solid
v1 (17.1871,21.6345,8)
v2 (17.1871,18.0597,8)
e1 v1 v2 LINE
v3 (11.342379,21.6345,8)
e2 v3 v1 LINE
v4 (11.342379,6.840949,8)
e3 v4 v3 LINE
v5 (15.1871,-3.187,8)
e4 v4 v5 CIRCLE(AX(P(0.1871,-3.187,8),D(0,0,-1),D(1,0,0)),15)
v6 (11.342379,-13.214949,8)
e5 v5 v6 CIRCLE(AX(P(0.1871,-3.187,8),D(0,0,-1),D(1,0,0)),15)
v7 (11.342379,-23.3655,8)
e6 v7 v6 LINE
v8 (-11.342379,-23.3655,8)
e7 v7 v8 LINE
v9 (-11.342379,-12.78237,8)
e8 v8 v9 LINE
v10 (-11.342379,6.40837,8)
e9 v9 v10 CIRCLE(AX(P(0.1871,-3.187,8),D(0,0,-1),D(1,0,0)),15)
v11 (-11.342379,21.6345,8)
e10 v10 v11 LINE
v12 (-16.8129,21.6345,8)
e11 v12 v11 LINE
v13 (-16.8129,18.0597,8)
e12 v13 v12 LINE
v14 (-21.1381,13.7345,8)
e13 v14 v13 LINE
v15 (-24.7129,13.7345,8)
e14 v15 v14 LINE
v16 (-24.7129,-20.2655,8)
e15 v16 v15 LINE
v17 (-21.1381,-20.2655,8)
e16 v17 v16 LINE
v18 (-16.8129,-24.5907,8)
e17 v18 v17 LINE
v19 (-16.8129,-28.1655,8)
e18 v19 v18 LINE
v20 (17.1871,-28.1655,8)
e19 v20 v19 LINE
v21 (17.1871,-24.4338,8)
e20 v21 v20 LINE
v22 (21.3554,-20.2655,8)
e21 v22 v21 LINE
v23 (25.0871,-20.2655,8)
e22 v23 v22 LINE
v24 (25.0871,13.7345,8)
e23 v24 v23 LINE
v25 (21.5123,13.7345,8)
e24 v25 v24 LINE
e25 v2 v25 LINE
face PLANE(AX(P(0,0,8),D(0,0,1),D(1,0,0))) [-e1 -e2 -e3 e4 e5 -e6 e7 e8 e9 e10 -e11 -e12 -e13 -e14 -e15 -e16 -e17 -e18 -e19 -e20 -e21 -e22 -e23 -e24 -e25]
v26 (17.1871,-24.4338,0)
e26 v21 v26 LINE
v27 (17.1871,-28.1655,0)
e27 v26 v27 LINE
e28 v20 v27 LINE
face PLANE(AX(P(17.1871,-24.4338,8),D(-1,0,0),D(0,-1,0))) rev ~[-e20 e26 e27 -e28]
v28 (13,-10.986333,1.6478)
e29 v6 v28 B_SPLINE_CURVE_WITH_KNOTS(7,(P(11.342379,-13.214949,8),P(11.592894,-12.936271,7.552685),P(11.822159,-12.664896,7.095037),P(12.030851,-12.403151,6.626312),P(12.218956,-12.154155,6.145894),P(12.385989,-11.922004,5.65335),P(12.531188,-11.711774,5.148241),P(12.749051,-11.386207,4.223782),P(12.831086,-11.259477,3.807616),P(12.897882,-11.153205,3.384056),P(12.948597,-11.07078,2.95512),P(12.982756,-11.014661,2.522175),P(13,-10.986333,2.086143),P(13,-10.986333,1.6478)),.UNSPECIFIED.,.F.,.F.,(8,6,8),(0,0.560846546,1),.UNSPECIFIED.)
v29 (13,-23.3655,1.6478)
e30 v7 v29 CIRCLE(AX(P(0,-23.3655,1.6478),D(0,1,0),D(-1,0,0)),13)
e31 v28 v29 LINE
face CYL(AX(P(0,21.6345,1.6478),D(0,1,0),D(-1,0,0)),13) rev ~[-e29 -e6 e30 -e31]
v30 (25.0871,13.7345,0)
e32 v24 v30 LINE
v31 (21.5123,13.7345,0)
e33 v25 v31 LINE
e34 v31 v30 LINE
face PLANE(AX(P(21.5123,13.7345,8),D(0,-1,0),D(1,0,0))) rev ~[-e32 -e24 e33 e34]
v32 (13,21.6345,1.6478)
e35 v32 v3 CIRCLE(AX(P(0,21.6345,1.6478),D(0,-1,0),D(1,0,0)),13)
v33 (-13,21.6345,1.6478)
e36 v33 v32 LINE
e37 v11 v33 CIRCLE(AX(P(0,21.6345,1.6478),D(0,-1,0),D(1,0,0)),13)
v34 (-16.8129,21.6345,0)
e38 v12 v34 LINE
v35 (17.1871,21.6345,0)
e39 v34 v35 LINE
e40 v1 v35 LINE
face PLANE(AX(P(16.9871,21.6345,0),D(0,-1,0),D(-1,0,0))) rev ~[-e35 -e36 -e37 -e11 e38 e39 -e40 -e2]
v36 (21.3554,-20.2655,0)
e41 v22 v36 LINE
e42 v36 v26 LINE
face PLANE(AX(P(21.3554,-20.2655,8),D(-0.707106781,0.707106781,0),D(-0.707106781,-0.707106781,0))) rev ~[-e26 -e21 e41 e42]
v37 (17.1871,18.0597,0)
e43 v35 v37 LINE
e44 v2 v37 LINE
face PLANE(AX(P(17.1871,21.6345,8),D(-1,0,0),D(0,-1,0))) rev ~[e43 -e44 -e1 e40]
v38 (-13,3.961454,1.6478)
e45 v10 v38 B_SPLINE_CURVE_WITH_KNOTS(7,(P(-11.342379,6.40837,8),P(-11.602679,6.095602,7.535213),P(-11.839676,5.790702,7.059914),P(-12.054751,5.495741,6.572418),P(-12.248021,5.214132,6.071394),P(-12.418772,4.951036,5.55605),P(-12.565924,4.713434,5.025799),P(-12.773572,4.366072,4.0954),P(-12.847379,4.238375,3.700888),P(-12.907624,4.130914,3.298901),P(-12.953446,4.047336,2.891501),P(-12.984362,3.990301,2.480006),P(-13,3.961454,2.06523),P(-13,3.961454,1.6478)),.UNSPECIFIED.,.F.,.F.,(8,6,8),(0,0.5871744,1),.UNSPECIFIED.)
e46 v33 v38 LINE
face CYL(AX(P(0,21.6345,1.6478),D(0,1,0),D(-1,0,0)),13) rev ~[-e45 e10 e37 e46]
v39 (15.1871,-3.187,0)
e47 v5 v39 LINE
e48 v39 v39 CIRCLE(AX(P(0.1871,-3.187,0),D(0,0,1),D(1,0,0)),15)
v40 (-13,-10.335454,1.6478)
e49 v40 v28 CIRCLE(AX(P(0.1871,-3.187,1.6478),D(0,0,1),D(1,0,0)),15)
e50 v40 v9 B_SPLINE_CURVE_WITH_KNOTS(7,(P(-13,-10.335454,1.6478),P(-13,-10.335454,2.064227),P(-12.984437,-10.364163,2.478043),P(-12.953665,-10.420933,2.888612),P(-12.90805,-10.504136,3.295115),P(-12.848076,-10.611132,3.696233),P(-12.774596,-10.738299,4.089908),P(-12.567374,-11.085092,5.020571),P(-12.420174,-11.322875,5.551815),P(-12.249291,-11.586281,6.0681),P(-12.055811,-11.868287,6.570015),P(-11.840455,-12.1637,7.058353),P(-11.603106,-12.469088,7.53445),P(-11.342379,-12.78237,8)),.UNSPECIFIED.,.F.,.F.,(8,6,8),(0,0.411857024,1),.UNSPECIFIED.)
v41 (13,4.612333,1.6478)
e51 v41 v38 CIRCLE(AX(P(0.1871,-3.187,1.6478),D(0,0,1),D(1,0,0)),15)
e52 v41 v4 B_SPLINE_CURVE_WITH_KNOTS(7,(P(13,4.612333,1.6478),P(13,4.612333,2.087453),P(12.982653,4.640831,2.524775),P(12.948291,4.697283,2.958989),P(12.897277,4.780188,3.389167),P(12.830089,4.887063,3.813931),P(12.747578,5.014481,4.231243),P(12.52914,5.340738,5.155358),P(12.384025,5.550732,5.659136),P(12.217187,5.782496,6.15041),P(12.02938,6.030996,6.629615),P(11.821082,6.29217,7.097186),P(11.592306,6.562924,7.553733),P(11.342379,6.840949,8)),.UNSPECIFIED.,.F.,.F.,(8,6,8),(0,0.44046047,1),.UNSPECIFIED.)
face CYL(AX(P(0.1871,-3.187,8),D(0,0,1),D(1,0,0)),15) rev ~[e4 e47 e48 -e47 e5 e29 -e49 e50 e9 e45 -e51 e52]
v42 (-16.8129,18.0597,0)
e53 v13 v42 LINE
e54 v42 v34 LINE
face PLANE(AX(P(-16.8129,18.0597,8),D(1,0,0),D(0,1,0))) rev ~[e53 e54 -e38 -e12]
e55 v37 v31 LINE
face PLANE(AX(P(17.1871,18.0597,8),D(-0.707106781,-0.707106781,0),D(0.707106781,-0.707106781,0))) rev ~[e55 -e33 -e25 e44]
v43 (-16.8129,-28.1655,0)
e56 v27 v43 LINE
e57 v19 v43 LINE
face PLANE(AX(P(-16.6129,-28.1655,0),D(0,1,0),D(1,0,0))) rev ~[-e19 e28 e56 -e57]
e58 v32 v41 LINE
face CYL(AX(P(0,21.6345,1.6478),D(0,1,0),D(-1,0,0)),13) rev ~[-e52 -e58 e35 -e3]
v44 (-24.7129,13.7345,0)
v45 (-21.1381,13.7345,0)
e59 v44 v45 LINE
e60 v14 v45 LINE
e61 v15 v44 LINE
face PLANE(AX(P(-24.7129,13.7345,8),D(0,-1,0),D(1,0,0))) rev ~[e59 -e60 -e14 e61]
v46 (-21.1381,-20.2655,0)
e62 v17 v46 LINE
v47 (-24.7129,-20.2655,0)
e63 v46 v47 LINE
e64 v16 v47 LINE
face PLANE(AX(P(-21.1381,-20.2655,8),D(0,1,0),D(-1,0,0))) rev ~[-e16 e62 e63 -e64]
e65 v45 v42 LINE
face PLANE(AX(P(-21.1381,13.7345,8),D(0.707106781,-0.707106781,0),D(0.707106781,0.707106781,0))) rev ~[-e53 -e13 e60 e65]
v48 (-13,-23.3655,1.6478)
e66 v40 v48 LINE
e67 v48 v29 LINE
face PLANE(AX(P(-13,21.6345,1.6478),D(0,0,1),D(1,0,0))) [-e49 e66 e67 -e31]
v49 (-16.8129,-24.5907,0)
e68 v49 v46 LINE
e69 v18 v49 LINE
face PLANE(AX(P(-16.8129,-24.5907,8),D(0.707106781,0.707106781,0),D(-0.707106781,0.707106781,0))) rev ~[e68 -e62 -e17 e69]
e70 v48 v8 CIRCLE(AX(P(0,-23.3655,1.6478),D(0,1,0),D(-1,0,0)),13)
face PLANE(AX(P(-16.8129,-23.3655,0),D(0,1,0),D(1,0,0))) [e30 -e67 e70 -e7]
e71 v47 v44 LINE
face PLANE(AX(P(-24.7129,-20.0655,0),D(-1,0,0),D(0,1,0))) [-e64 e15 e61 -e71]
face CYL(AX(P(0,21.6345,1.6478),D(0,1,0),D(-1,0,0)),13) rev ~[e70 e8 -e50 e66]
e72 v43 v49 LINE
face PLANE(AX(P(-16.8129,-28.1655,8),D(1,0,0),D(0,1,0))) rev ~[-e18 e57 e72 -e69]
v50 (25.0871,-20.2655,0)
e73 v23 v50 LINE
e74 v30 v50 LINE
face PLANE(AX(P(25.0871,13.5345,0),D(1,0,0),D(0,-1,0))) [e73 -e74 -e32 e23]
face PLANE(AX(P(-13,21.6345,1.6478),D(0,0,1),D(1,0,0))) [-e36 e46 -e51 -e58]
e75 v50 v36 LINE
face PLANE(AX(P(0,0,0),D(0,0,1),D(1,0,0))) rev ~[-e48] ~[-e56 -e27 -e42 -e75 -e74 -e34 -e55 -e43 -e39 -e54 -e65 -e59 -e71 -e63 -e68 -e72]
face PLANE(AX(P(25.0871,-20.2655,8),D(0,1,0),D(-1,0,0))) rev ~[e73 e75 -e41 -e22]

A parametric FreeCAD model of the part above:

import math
import FreeCAD as App
import Part
import Sketcher

V = App.Vector

doc = App.newDocument("Part")
body = doc.addObject("PartDesign::Body", "Body")

# Sketch on XY plane
sketch1 = body.newObject("Sketcher::SketchObject", "Sketch")
sketch1.AttachmentSupport = (doc.getObject("XY_Plane"), [""])
sketch1.MapMode = "FlatFace"
sketch1.addGeometry([
    Part.LineSegment(V(17, 18, 0), V(17, 21.6, 0)),  # 0
    Part.LineSegment(V(17, 21.6, 0), V(-16.6, 21.6, 0)),  # 1
    Part.LineSegment(V(-16.6, 21.6, 0), V(-16.6, 18, 0)),  # 2
    Part.LineSegment(V(-16.6, 18, 0), V(-21.1, 13.5, 0)),  # 3
    Part.LineSegment(V(-21.1, 13.5, 0), V(-24.7, 13.5, 0)),  # 4
    Part.LineSegment(V(-24.7, 13.5, 0), V(-24.7, -20.1, 0)),  # 5
    Part.LineSegment(V(-24.7, -20.1, 0), V(-21.1, -20.1, 0)),  # 6
    Part.LineSegment(V(-21.1, -20.1, 0), V(-16.6, -24.5, 0)),  # 7
    Part.LineSegment(V(-16.6, -24.5, 0), V(-16.6, -28.2, 0)),  # 8
    Part.LineSegment(V(-16.6, -28.2, 0), V(17, -28.2, 0)),  # 9
    Part.LineSegment(V(17, -28.2, 0), V(17, -24.4, 0)),  # 10
    Part.LineSegment(V(17, -24.4, 0), V(21.3, -20.1, 0)),  # 11
    Part.LineSegment(V(21.3, -20.1, 0), V(25.1, -20.1, 0)),  # 12
    Part.LineSegment(V(25.1, -20.1, 0), V(25.1, 13.5, 0)),  # 13
    Part.LineSegment(V(25.1, 13.5, 0), V(21.4, 13.5, 0)),  # 14
    Part.LineSegment(V(21.4, 13.5, 0), V(17, 18, 0)),  # 15
], False)
sketch1.addConstraint([
    Sketcher.Constraint("Coincident", 0, 2, 1, 1),
    Sketcher.Constraint("Coincident", 1, 2, 2, 1),
    Sketcher.Constraint("Coincident", 2, 2, 3, 1),
    Sketcher.Constraint("Coincident", 3, 2, 4, 1),
    Sketcher.Constraint("Coincident", 4, 2, 5, 1),
    Sketcher.Constraint("Coincident", 5, 2, 6, 1),
    Sketcher.Constraint("Coincident", 6, 2, 7, 1),
    Sketcher.Constraint("Coincident", 7, 2, 8, 1),
    Sketcher.Constraint("Coincident", 8, 2, 9, 1),
    Sketcher.Constraint("Coincident", 9, 2, 10, 1),
    Sketcher.Constraint("Coincident", 10, 2, 11, 1),
    Sketcher.Constraint("Coincident", 11, 2, 12, 1),
    Sketcher.Constraint("Coincident", 12, 2, 13, 1),
    Sketcher.Constraint("Coincident", 13, 2, 14, 1),
    Sketcher.Constraint("Coincident", 14, 2, 15, 1),
    Sketcher.Constraint("Coincident", 15, 2, 0, 1),
    Sketcher.Constraint("Vertical", 0),
    Sketcher.Constraint("Horizontal", 1),
    Sketcher.Constraint("Vertical", 2),
    Sketcher.Constraint("Horizontal", 4),
    Sketcher.Constraint("Vertical", 5),
    Sketcher.Constraint("Horizontal", 6),
    Sketcher.Constraint("Vertical", 8),
    Sketcher.Constraint("Horizontal", 9),
    Sketcher.Constraint("Vertical", 10),
    Sketcher.Constraint("Horizontal", 12),
    Sketcher.Constraint("Vertical", 13),
    Sketcher.Constraint("Horizontal", 14),
    Sketcher.Constraint("Perpendicular", 3, 7),
    Sketcher.Constraint("Perpendicular", 7, 11),
    Sketcher.Constraint("Perpendicular", 11, 15),
    Sketcher.Constraint("Horizontal", 6, 2, 11, 2),
    Sketcher.Constraint("Horizontal", 4, 2, 13, 2),
    Sketcher.Constraint("Horizontal", 2, 2, 15, 2),
    Sketcher.Constraint("Vertical", 3, 2, 6, 2),
    Sketcher.Constraint("Vertical", 2, 2, 7, 2),
    Sketcher.Constraint("Vertical", 0, 2, 9, 2),
    Sketcher.Constraint("Equal", 6, 14),
    Sketcher.Constraint("Equal", 14, 0),
    Sketcher.Constraint("Equal", 9, 5),
    Sketcher.Constraint("Equal", 2, 8),
    Sketcher.Constraint("Equal", 12, 10),
    Sketcher.Constraint("DistanceX", 1, 2, 1, 1, 33.6),
    Sketcher.Constraint("DistanceY", 3, 2, 1, 2, 8.1),
    Sketcher.Constraint("DistanceX", 4, 2, 4, 1, 3.6577),
    Sketcher.Constraint("DistanceX", 12, 1, 12, 2, 3.8145),
    Sketcher.Constraint("DistanceX", -1, 1, 0, 2, 16.987),
    Sketcher.Constraint("DistanceY", 10, 2, -1, 1, 24.351),
])
pad1 = body.newObject("PartDesign::Pad", "Pad")
pad1.Profile = sketch1
pad1.Length = 8

# Sketch on XY plane
sketch2 = body.newObject("Sketcher::SketchObject", "Sketch001")
sketch2.AttachmentSupport = (doc.getObject("XY_Plane"), [""])
sketch2.MapMode = "FlatFace"
sketch2.AttachmentOffset = App.Placement(V(0, 0, 8), App.Rotation())
sketch2.addGeometry([
    Part.LineSegment(V(-16.61, -24.51, 0), V(-21.06, -20.07, 0)),  # 0
    Part.LineSegment(V(-21.06, -20.07, 0), V(-24.71, -20.07, 0)),  # 1
    Part.LineSegment(V(-24.71, -20.07, 0), V(-24.71, -20.27, 0)),  # 2
    Part.LineSegment(V(-24.71, -20.27, 0), V(-21.14, -20.27, 0)),  # 3
    Part.LineSegment(V(-21.14, -20.27, 0), V(-16.81, -24.59, 0)),  # 4
    Part.LineSegment(V(-16.81, -24.59, 0), V(-16.81, -28.17, 0)),  # 5
    Part.LineSegment(V(-16.81, -28.17, 0), V(-16.61, -28.17, 0)),  # 6
    Part.LineSegment(V(-16.61, -28.17, 0), V(-16.61, -24.51, 0)),  # 7
    Part.LineSegment(V(21.43, 13.53, 0), V(25.09, 13.53, 0)),  # 8
    Part.LineSegment(V(25.09, 13.53, 0), V(25.09, 13.73, 0)),  # 9
    Part.LineSegment(V(25.09, 13.73, 0), V(21.51, 13.73, 0)),  # 10
    Part.LineSegment(V(21.51, 13.73, 0), V(17.19, 18.06, 0)),  # 11
    Part.LineSegment(V(17.19, 18.06, 0), V(17.19, 21.63, 0)),  # 12
    Part.LineSegment(V(17.19, 21.63, 0), V(16.99, 21.63, 0)),  # 13
    Part.LineSegment(V(16.99, 21.63, 0), V(16.99, 17.98, 0)),  # 14
    Part.LineSegment(V(16.99, 17.98, 0), V(21.43, 13.53, 0)),  # 15
    Part.LineSegment(V(16.99, -24.35, 0), V(16.99, -28.17, 0)),  # 16
    Part.LineSegment(V(16.99, -28.17, 0), V(17.19, -28.17, 0)),  # 17
    Part.LineSegment(V(17.19, -28.17, 0), V(17.19, -24.43, 0)),  # 18
    Part.LineSegment(V(17.19, -24.43, 0), V(21.36, -20.27, 0)),  # 19
    Part.LineSegment(V(21.36, -20.27, 0), V(25.09, -20.27, 0)),  # 20
    Part.LineSegment(V(25.09, -20.27, 0), V(25.09, -20.07, 0)),  # 21
    Part.LineSegment(V(25.09, -20.07, 0), V(21.27, -20.07, 0)),  # 22
    Part.LineSegment(V(21.27, -20.07, 0), V(16.99, -24.35, 0)),  # 23
    Part.LineSegment(V(-16.61, 17.98, 0), V(-16.61, 21.63, 0)),  # 24
    Part.LineSegment(V(-16.61, 21.63, 0), V(-16.81, 21.63, 0)),  # 25
    Part.LineSegment(V(-16.81, 21.63, 0), V(-16.81, 18.06, 0)),  # 26
    Part.LineSegment(V(-16.81, 18.06, 0), V(-21.14, 13.73, 0)),  # 27
    Part.LineSegment(V(-21.14, 13.73, 0), V(-24.71, 13.73, 0)),  # 28
    Part.LineSegment(V(-24.71, 13.73, 0), V(-24.71, 13.53, 0)),  # 29
    Part.LineSegment(V(-24.71, 13.53, 0), V(-21.06, 13.53, 0)),  # 30
    Part.LineSegment(V(-21.06, 13.53, 0), V(-16.61, 17.98, 0)),  # 31
], False)
sketch2.addConstraint([
    Sketcher.Constraint("Coincident", 0, 2, 1, 1),
    Sketcher.Constraint("Coincident", 1, 2, 2, 1),
    Sketcher.Constraint("Coincident", 2, 2, 3, 1),
    Sketcher.Constraint("Coincident", 3, 2, 4, 1),
    Sketcher.Constraint("Coincident", 4, 2, 5, 1),
    Sketcher.Constraint("Coincident", 5, 2, 6, 1),
    Sketcher.Constraint("Coincident", 6, 2, 7, 1),
    Sketcher.Constraint("Coincident", 7, 2, 0, 1),
    Sketcher.Constraint("Coincident", 8, 2, 9, 1),
    Sketcher.Constraint("Coincident", 9, 2, 10, 1),
    Sketcher.Constraint("Coincident", 10, 2, 11, 1),
    Sketcher.Constraint("Coincident", 11, 2, 12, 1),
    Sketcher.Constraint("Coincident", 12, 2, 13, 1),
    Sketcher.Constraint("Coincident", 13, 2, 14, 1),
    Sketcher.Constraint("Coincident", 14, 2, 15, 1),
    Sketcher.Constraint("Coincident", 15, 2, 8, 1),
    Sketcher.Constraint("Coincident", 16, 2, 17, 1),
    Sketcher.Constraint("Coincident", 17, 2, 18, 1),
    Sketcher.Constraint("Coincident", 18, 2, 19, 1),
    Sketcher.Constraint("Coincident", 19, 2, 20, 1),
    Sketcher.Constraint("Coincident", 20, 2, 21, 1),
    Sketcher.Constraint("Coincident", 21, 2, 22, 1),
    Sketcher.Constraint("Coincident", 22, 2, 23, 1),
    Sketcher.Constraint("Coincident", 23, 2, 16, 1),
    Sketcher.Constraint("Coincident", 24, 2, 25, 1),
    Sketcher.Constraint("Coincident", 25, 2, 26, 1),
    Sketcher.Constraint("Coincident", 26, 2, 27, 1),
    Sketcher.Constraint("Coincident", 27, 2, 28, 1),
    Sketcher.Constraint("Coincident", 28, 2, 29, 1),
    Sketcher.Constraint("Coincident", 29, 2, 30, 1),
    Sketcher.Constraint("Coincident", 30, 2, 31, 1),
    Sketcher.Constraint("Coincident", 31, 2, 24, 1),
    Sketcher.Constraint("Horizontal", 1),
    Sketcher.Constraint("Vertical", 2),
    Sketcher.Constraint("Horizontal", 3),
    Sketcher.Constraint("Vertical", 5),
    Sketcher.Constraint("Horizontal", 6),
    Sketcher.Constraint("Vertical", 7),
    Sketcher.Constraint("Horizontal", 8),
    Sketcher.Constraint("Vertical", 9),
    Sketcher.Constraint("Horizontal", 10),
    Sketcher.Constraint("Vertical", 12),
    Sketcher.Constraint("Horizontal", 13),
    Sketcher.Constraint("Vertical", 14),
    Sketcher.Constraint("Vertical", 16),
    Sketcher.Constraint("Horizontal", 17),
    Sketcher.Constraint("Vertical", 18),
    Sketcher.Constraint("Horizontal", 20),
    Sketcher.Constraint("Vertical", 21),
    Sketcher.Constraint("Horizontal", 22),
    Sketcher.Constraint("Vertical", 24),
    Sketcher.Constraint("Horizontal", 25),
    Sketcher.Constraint("Vertical", 26),
    Sketcher.Constraint("Horizontal", 28),
    Sketcher.Constraint("Vertical", 29),
    Sketcher.Constraint("Horizontal", 30),
    Sketcher.Constraint("Parallel", 0, 4),
    Sketcher.Constraint("Parallel", 4, 11),
    Sketcher.Constraint("Parallel", 11, 15),
    Sketcher.Constraint("Perpendicular", 15, 19),
    Sketcher.Constraint("Parallel", 19, 23),
    Sketcher.Constraint("Parallel", 23, 27),
    Sketcher.Constraint("Parallel", 27, 31),
    Sketcher.Constraint("Horizontal", 6, 2, 16, 2),
    Sketcher.Constraint("Horizontal", 3, 2, 19, 2),
    Sketcher.Constraint("Horizontal", 1, 2, 21, 2),
    Sketcher.Constraint("Horizontal", 13, 2, 24, 2),
    Sketcher.Constraint("Horizontal", 11, 2, 26, 2),
    Sketcher.Constraint("Horizontal", 10, 2, 27, 2),
    Sketcher.Constraint("Horizontal", 15, 2, 29, 2),
    Sketcher.Constraint("Horizontal", 14, 2, 31, 2),
    Sketcher.Constraint("Vertical", 14, 2, 16, 2),
    Sketcher.Constraint("Vertical", 12, 2, 17, 2),
    Sketcher.Constraint("Vertical", 9, 2, 20, 2),
    Sketcher.Constraint("Vertical", 7, 2, 24, 2),
    Sketcher.Constraint("Vertical", 5, 2, 25, 2),
    Sketcher.Constraint("Vertical", 3, 2, 27, 2),
    Sketcher.Constraint("Vertical", 2, 2, 28, 2),
    Sketcher.Constraint("Vertical", 0, 2, 30, 2),
    Sketcher.Constraint("Equal", 1, 8),
    Sketcher.Constraint("Equal", 3, 10),
    Sketcher.Constraint("Equal", 6, 13),
    Sketcher.Constraint("Equal", 25, 2),
    Sketcher.Constraint("Equal", 28, 5),
    Sketcher.Constraint("Equal", 2, 9),
    Sketcher.Constraint("Equal", 5, 12),
    Sketcher.Constraint("DistanceX", 6, 1, 6, 2, 0.2),
    Sketcher.Constraint("DistanceY", 3, 2, 9, 2, 34.0),
    Sketcher.Constraint("DistanceX", 5, 2, 17, 2, 34.0),
    Sketcher.Constraint("DistanceX", 2, 2, 4, 2, 7.9),
    Sketcher.Constraint("DistanceX", 1, 2, 1, 1, 3.6577),
    Sketcher.Constraint("DistanceX", 3, 1, 3, 2, 3.5748),
    Sketcher.Constraint("DistanceX", 20, 1, 20, 2, 3.7317),
    Sketcher.Constraint("DistanceX", 22, 2, 22, 1, 3.8145),
    Sketcher.Constraint("DistanceX", 1, 2, -1, 1, 24.713),
    Sketcher.Constraint("DistanceY", 23, 2, -1, 1, 24.351),
])
pad2 = body.newObject("PartDesign::Pad", "Pad001")
pad2.Profile = sketch2
pad2.Length = 8
pad2.Reversed = True

# Sketch on XZ plane
sketch3 = body.newObject("Sketcher::SketchObject", "Sketch002")
sketch3.AttachmentSupport = (doc.getObject("XZ_Plane"), [""])
sketch3.MapMode = "FlatFace"
sketch3.AttachmentOffset = App.Placement(V(0, 0, -21.6345), App.Rotation())
sketch3.addGeometry([
    Part.ArcOfCircle(Part.Circle(V(0, 2, 0), V(0, 0, 1), 13), math.radians(0), math.radians(180)),
    Part.LineSegment(V(13, 2, 0), V(-13, 2, 0)),
], False)
sketch3.addConstraint([
    Sketcher.Constraint("Coincident", 0, 1, 1, 1),
    Sketcher.Constraint("Coincident", 1, 2, 0, 2),
    Sketcher.Constraint("Horizontal", 1),
    Sketcher.Constraint("PointOnObject", 0, 3, -2),
    Sketcher.Constraint("Radius", 0, 13.0),
    Sketcher.Constraint("DistanceY", -1, 1, 0, 3, 1.6478),
    Sketcher.Constraint("DistanceY", -1, 1, 0, 1, 1.6478),
])
pocket1 = body.newObject("PartDesign::Pocket", "Pocket")
pocket1.Profile = sketch3
pocket1.Length = 45
pocket1.Reversed = True

# Sketch on XY plane
sketch4 = body.newObject("Sketcher::SketchObject", "Sketch003")
sketch4.AttachmentSupport = (doc.getObject("XY_Plane"), [""])
sketch4.MapMode = "FlatFace"
sketch4.AttachmentOffset = App.Placement(V(0, 0, 8), App.Rotation())
sketch4.addGeometry(Part.Circle(V(0, -3, 0), V(0, 0, 1), 15), False)
sketch4.addConstraint([
    Sketcher.Constraint("Diameter", 0, 30.0),
    Sketcher.Constraint("DistanceX", -1, 1, 0, 3, 0.187),
    Sketcher.Constraint("DistanceY", 0, 3, -1, 1, 3.187),
])
pocket2 = body.newObject("PartDesign::Pocket", "Pocket001")
pocket2.Profile = sketch4
pocket2.Type = "ThroughAll"

doc.recompute()
